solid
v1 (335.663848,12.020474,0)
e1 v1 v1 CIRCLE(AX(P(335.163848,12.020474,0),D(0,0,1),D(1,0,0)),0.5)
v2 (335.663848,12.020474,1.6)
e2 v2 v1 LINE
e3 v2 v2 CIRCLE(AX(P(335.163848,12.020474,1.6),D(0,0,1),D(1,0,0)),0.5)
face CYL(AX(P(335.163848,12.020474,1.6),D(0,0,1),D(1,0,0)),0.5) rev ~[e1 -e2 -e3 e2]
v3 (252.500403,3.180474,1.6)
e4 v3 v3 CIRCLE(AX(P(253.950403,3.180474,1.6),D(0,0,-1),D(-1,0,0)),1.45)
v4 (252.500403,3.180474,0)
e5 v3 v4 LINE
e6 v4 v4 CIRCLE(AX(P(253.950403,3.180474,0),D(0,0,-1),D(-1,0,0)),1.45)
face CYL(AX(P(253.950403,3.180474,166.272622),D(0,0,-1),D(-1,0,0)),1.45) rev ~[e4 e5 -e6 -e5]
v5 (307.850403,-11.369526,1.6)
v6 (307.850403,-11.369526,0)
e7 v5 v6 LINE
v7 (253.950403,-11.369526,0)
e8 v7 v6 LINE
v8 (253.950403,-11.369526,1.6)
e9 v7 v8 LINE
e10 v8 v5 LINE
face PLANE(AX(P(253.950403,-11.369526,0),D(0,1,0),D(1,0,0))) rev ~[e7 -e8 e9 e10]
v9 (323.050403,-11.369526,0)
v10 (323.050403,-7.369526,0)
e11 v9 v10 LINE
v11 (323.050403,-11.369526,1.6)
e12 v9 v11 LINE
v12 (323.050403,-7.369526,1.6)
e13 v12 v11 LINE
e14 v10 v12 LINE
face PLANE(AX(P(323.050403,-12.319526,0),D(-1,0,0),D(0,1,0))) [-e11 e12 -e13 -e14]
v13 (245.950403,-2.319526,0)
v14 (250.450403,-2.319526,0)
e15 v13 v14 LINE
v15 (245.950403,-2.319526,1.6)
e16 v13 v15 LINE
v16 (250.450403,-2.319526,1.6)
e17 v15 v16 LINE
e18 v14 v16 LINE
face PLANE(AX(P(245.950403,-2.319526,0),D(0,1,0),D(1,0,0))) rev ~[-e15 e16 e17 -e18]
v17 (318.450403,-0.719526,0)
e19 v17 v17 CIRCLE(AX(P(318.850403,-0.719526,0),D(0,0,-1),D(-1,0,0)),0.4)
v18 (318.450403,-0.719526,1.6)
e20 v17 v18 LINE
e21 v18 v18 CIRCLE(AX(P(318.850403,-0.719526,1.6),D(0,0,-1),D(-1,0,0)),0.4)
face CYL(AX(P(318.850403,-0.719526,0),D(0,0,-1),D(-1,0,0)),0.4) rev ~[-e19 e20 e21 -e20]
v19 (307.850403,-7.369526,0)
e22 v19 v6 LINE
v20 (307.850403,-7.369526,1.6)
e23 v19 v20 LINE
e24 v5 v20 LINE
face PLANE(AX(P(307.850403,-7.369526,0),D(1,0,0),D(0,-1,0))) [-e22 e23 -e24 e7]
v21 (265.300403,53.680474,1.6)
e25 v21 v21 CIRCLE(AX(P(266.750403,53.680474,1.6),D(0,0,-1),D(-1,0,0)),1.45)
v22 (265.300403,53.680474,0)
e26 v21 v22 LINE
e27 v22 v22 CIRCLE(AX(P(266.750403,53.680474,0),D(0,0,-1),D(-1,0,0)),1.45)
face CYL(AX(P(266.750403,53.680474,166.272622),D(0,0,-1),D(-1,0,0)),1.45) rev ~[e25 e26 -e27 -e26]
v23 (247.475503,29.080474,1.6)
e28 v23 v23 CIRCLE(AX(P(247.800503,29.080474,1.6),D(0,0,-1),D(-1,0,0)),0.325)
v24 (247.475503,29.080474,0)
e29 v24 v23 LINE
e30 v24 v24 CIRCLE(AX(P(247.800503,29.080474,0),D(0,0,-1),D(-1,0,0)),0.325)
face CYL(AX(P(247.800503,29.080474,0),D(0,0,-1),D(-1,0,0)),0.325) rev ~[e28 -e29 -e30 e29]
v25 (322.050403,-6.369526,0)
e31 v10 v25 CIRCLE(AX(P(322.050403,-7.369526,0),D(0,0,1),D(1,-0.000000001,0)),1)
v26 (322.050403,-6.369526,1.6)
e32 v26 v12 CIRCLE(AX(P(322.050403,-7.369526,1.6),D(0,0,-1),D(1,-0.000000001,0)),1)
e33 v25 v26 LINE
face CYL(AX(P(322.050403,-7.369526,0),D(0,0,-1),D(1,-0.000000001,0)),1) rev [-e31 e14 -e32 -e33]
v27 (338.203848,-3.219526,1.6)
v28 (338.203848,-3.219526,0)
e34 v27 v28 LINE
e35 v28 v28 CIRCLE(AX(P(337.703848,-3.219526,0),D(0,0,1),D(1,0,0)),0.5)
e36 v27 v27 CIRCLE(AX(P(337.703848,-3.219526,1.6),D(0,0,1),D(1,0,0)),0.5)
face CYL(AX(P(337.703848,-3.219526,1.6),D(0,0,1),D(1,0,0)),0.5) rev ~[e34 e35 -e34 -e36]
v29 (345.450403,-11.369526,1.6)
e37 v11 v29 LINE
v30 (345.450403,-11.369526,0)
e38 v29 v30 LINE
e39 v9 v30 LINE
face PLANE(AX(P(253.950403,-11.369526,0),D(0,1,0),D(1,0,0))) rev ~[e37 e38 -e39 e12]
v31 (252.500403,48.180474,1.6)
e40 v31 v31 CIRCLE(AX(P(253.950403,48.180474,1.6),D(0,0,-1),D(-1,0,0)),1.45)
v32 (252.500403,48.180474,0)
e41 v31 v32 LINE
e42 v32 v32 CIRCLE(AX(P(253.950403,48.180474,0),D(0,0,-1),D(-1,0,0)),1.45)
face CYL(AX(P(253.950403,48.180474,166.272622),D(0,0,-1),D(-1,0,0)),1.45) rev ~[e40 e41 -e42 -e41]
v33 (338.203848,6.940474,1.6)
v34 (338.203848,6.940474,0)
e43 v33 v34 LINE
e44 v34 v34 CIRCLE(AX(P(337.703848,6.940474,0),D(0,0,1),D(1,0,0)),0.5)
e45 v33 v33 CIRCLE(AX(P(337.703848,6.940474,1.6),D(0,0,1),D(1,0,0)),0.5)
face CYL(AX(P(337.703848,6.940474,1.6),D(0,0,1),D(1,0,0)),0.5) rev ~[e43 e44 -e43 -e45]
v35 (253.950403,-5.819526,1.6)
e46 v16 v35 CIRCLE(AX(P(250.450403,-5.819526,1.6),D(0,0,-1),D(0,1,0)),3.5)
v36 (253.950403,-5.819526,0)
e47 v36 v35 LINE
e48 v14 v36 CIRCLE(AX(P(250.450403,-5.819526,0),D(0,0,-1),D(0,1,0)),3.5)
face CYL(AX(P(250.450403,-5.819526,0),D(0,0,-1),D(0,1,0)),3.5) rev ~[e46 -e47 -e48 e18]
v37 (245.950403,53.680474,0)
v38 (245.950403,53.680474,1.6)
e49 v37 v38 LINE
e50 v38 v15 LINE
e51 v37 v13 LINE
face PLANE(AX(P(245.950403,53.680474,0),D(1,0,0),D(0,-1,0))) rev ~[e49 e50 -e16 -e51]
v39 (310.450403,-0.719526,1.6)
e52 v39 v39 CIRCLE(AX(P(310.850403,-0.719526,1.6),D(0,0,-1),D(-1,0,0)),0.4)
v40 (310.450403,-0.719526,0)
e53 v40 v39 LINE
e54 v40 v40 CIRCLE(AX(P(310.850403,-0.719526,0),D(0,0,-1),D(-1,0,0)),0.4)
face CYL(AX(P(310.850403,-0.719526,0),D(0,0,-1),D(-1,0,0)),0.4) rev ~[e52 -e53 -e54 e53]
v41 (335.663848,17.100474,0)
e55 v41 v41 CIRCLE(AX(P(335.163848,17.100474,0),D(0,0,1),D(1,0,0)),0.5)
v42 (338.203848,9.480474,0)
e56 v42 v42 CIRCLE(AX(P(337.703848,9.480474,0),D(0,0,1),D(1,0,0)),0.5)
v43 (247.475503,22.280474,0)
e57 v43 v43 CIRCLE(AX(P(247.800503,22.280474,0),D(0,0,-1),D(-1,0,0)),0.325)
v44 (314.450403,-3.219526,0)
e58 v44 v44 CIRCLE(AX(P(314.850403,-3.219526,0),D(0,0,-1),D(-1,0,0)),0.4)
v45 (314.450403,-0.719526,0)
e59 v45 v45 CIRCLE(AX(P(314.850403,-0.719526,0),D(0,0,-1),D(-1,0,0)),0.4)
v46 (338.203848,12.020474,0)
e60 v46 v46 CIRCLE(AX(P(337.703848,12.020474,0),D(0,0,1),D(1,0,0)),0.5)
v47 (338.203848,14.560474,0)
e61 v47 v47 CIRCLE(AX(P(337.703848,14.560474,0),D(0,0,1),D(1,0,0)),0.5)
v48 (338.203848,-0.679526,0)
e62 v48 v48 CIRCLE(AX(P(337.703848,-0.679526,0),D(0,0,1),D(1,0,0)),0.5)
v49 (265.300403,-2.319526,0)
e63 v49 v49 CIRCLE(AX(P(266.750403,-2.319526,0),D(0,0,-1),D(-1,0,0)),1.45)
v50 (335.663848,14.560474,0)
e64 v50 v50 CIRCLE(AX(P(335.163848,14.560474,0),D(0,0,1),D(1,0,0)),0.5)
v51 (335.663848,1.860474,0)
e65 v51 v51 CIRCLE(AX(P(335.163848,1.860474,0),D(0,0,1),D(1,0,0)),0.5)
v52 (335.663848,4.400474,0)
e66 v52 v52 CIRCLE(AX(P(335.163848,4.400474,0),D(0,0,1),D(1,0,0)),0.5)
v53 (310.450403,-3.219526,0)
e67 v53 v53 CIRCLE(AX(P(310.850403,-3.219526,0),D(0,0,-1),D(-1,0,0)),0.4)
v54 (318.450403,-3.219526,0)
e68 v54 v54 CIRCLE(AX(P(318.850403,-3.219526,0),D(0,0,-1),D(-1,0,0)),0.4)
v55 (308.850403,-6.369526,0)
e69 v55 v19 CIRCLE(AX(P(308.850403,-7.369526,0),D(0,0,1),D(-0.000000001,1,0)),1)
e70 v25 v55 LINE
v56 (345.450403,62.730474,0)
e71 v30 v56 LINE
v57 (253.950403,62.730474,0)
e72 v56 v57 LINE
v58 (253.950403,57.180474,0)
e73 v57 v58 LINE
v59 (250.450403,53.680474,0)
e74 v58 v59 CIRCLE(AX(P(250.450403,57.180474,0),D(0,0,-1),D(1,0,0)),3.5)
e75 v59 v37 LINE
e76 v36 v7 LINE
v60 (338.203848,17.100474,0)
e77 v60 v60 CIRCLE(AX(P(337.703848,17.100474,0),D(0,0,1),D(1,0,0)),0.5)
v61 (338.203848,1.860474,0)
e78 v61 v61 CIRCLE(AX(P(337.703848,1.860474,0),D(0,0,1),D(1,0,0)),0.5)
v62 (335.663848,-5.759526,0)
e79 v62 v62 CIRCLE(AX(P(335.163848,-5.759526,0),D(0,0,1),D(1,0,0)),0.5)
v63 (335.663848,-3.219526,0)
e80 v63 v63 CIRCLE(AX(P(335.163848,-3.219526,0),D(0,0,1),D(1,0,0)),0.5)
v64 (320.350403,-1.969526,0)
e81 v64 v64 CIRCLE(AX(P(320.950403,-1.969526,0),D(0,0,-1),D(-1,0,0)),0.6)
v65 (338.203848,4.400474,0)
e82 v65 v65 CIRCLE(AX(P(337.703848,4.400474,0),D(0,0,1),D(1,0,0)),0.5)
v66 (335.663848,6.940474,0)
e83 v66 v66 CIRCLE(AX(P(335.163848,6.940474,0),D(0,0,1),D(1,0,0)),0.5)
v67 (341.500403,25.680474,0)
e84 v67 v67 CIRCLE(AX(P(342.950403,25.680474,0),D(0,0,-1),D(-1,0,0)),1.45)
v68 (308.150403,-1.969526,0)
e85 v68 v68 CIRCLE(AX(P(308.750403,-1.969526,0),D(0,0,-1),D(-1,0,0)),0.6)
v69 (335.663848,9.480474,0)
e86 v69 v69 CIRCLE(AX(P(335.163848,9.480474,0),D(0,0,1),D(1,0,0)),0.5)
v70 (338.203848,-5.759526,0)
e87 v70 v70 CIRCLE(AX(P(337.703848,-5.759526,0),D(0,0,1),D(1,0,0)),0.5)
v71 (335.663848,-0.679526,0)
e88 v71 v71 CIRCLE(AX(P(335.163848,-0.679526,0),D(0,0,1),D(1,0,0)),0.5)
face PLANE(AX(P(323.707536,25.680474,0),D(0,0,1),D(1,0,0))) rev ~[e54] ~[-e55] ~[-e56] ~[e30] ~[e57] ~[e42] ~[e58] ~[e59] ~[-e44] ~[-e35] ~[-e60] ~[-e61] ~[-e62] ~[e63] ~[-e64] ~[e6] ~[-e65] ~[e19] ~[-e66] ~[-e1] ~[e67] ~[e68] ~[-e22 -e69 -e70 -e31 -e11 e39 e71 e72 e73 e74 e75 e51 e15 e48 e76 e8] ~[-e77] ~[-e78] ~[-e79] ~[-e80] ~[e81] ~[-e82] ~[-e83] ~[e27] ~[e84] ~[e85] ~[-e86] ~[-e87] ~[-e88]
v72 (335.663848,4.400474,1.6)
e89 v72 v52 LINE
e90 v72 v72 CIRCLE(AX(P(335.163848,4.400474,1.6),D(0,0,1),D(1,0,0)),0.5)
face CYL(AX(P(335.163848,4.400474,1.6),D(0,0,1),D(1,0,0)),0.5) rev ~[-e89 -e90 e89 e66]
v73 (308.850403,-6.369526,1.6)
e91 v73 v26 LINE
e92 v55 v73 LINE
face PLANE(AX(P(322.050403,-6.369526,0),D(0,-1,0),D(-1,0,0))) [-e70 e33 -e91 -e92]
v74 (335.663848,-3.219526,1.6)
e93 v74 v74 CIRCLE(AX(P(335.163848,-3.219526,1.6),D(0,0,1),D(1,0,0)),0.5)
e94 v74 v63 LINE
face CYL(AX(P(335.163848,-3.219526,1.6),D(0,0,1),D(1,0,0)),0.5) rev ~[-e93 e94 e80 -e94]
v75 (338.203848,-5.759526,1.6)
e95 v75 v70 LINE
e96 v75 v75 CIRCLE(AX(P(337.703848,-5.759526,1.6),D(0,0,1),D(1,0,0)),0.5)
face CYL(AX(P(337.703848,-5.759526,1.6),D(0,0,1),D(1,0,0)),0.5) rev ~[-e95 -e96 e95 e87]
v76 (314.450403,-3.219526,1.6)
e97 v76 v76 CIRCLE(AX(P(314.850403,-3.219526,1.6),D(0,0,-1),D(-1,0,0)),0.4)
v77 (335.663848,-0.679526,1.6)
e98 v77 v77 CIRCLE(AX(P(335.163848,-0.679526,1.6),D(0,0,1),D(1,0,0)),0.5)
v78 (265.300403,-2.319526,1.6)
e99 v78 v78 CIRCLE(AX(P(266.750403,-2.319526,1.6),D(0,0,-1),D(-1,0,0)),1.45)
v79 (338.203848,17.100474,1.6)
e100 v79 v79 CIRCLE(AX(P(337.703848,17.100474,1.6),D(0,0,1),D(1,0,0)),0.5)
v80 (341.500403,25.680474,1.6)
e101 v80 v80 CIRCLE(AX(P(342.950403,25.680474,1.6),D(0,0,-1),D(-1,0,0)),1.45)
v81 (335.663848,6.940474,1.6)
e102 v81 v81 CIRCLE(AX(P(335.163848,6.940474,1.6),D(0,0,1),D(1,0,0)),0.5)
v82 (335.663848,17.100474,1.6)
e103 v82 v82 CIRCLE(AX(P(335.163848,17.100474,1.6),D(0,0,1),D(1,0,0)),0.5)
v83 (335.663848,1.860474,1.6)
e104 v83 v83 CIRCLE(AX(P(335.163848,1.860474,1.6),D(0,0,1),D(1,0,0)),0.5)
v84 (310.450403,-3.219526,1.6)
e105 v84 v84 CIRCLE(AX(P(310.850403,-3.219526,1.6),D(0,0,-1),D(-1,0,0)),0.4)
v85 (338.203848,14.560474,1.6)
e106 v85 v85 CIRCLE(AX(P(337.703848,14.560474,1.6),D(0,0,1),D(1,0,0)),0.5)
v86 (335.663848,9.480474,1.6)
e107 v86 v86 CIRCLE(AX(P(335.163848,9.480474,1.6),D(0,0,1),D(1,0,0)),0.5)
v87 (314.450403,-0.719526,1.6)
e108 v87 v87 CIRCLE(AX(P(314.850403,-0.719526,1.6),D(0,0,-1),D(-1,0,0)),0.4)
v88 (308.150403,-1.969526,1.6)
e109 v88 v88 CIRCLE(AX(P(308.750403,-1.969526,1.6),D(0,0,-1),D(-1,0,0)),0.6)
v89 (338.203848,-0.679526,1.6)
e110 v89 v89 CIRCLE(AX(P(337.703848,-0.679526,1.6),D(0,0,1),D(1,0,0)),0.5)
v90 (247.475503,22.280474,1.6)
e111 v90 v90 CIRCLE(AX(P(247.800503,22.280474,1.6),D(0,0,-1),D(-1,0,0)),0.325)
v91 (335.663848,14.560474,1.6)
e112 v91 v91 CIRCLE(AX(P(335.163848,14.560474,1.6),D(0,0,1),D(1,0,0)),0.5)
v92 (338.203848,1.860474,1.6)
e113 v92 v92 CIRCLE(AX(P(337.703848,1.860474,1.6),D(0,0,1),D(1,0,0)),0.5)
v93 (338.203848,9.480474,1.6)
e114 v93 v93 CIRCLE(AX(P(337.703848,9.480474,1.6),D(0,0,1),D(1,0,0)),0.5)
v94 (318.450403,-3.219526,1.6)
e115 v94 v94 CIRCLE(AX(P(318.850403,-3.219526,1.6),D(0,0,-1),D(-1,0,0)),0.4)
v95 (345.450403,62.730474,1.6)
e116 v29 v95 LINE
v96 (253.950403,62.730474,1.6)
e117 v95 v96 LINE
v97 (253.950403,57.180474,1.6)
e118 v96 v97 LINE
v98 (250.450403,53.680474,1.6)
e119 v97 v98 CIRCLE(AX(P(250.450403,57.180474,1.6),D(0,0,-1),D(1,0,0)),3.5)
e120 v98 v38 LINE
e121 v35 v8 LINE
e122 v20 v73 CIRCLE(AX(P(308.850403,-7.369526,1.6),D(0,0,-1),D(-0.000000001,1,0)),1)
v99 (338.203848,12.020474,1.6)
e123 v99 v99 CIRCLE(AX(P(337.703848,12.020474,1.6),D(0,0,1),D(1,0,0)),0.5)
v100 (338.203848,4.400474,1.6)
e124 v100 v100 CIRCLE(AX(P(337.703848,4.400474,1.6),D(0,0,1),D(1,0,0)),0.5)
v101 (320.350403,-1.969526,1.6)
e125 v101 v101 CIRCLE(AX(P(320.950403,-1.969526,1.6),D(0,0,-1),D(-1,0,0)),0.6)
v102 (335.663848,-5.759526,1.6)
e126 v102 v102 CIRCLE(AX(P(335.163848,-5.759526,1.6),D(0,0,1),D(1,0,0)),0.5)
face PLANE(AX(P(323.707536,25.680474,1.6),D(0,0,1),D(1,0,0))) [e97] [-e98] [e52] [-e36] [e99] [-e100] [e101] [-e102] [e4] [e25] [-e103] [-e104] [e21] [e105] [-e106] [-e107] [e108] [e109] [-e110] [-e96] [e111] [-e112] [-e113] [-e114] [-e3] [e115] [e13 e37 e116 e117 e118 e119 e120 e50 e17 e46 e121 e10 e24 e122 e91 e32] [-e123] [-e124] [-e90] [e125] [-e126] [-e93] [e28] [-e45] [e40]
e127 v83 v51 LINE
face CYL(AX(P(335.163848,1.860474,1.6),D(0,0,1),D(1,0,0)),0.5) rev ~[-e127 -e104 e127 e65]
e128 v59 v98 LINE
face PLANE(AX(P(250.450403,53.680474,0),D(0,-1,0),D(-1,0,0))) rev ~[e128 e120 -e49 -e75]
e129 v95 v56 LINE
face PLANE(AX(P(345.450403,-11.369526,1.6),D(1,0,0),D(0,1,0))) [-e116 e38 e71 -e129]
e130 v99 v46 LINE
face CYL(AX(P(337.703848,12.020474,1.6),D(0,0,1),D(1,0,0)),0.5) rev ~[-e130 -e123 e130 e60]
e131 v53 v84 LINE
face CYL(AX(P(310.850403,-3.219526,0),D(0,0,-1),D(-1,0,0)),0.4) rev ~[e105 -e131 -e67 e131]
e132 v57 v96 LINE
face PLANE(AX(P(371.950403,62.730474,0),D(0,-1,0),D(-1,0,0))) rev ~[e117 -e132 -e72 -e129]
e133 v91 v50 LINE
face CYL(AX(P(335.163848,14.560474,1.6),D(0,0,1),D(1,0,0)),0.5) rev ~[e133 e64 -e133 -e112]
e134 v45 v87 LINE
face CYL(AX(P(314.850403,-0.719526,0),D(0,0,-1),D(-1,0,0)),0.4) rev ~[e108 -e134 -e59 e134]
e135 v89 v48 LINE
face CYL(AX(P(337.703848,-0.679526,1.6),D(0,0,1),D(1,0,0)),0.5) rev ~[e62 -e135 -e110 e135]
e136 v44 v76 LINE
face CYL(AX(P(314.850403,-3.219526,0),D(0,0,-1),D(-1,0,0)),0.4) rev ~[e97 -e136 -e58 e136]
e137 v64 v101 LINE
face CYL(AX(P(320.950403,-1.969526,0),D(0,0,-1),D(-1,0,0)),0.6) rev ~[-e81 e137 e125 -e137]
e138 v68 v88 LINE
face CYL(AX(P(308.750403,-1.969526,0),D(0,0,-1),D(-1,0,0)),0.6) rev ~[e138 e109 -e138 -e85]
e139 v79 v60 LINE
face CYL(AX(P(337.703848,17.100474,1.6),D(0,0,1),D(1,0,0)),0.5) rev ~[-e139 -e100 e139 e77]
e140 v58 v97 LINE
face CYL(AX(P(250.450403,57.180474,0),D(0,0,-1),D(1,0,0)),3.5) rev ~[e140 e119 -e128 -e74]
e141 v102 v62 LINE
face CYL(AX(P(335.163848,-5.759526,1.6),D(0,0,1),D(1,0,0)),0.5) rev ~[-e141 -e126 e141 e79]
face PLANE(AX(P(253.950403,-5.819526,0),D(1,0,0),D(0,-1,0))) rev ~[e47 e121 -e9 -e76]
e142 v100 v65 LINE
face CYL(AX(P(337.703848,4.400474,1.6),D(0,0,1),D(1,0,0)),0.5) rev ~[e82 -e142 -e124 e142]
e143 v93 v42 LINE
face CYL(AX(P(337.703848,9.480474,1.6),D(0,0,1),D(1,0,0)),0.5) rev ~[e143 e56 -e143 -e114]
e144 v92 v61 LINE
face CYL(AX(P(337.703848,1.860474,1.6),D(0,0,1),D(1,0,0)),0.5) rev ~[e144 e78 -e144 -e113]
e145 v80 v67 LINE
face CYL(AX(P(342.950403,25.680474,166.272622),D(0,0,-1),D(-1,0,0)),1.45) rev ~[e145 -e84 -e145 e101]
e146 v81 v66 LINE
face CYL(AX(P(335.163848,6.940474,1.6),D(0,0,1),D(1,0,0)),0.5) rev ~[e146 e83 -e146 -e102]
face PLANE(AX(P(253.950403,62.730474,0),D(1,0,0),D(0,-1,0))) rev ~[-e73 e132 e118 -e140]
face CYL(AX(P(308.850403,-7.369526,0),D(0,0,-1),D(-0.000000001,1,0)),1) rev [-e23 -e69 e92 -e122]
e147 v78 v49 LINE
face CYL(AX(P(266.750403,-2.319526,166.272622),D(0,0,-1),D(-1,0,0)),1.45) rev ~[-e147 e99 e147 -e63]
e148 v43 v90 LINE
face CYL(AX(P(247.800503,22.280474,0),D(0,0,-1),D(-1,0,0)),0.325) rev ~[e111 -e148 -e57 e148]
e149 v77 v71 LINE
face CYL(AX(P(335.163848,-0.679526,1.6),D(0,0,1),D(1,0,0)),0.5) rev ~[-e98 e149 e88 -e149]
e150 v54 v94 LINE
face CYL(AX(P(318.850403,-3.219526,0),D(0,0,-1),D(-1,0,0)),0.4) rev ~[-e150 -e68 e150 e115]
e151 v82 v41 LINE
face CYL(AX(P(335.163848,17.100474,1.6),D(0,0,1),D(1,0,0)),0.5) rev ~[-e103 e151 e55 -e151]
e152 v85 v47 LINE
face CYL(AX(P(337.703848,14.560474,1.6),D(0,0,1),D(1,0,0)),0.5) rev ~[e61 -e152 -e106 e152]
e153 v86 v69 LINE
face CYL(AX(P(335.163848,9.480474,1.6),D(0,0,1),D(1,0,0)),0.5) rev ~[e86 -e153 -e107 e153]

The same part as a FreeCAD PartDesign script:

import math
import FreeCAD as App
import Part
import Sketcher
from FreeCAD import Vector
Q = App.Units.Quantity


def add_polygon(sketch, points):
    """Adds a closed chain of lines whose ends are joined by coincident constraints."""
    first, n = sketch.GeometryCount, len(points)
    for a, b in zip(points, points[1:] + points[:1]):
        sketch.addGeometry(Part.LineSegment(App.Vector(*a, 0), App.Vector(*b, 0)), False)
    for i in range(n):
        sketch.addConstraint(Sketcher.Constraint("Coincident", first + i, 2, first + (i + 1) % n, 1))

doc = App.newDocument("Part")
body = doc.addObject("PartDesign::Body", "Body")

# Sketch on XY plane
sketch1 = body.newObject("Sketcher::SketchObject", "Sketch")
sketch1.AttachmentSupport = (doc.getObject("XY_Plane"), [""])
sketch1.MapMode = "FlatFace"
sketch1.addGeometry(Part.LineSegment(Vector(372, 62.7, 0), Vector(254, 62.7, 0)), False)
sketch1.addGeometry(Part.LineSegment(Vector(254, 62.7, 0), Vector(254, 57.2, 0)), False)
sketch1.addGeometry(Part.ArcOfCircle(Part.Circle(Vector(250.5, 57.2, 0), Vector(0, 0, 1), 3.5), math.radians(-90), math.radians(0)), False)
sketch1.addGeometry(Part.LineSegment(Vector(250.5, 53.7, 0), Vector(246, 53.7, 0)), False)
sketch1.addGeometry(Part.LineSegment(Vector(246, 53.7, 0), Vector(246, -2.3, 0)), False)
sketch1.addGeometry(Part.LineSegment(Vector(246, -2.3, 0), Vector(250.5, -2.3, 0)), False)
sketch1.addGeometry(Part.ArcOfCircle(Part.Circle(Vector(250.5, -5.8, 0), Vector(0, 0, 1), 3.5), math.radians(0), math.radians(90)), False)
sketch1.addGeometry(Part.LineSegment(Vector(254, -5.8, 0), Vector(254, -11.4, 0)), False)
sketch1.addGeometry(Part.LineSegment(Vector(254, -11.4, 0), Vector(372, -11.4, 0)), False)
sketch1.addGeometry(Part.LineSegment(Vector(372, -11.4, 0), Vector(372, -5.8, 0)), False)
sketch1.addGeometry(Part.ArcOfCircle(Part.Circle(Vector(375.5, -5.8, 0), Vector(0, 0, 1), 3.5), math.radians(0), math.radians(180)), False)
sketch1.addGeometry(Part.LineSegment(Vector(379, -5.8, 0), Vector(379, -11.4, 0)), False)
sketch1.addGeometry(Part.LineSegment(Vector(379, -11.4, 0), Vector(393, -11.4, 0)), False)
sketch1.addGeometry(Part.LineSegment(Vector(393, -11.4, 0), Vector(393, 62.7, 0)), False)
sketch1.addGeometry(Part.LineSegment(Vector(393, 62.7, 0), Vector(379, 62.7, 0)), False)
sketch1.addGeometry(Part.LineSegment(Vector(379, 62.7, 0), Vector(379, 57.2, 0)), False)
sketch1.addGeometry(Part.ArcOfCircle(Part.Circle(Vector(375.5, 57.2, 0), Vector(0, 0, 1), 3.5), math.radians(180), math.radians(360)), False)
sketch1.addGeometry(Part.LineSegment(Vector(372, 57.2, 0), Vector(372, 62.7, 0)), False)
sketch1.addConstraint(Sketcher.Constraint("Coincident", 0, 2, 1, 1))
sketch1.addConstraint(Sketcher.Constraint("Tangent", 1, 2, 2, 2))
sketch1.addConstraint(Sketcher.Constraint("Tangent", 2, 1, 3, 1))
sketch1.addConstraint(Sketcher.Constraint("Coincident", 3, 2, 4, 1))
sketch1.addConstraint(Sketcher.Constraint("Coincident", 4, 2, 5, 1))
sketch1.addConstraint(Sketcher.Constraint("Tangent", 5, 2, 6, 2))
sketch1.addConstraint(Sketcher.Constraint("Tangent", 6, 1, 7, 1))
sketch1.addConstraint(Sketcher.Constraint("Coincident", 7, 2, 8, 1))
sketch1.addConstraint(Sketcher.Constraint("Coincident", 8, 2, 9, 1))
sketch1.addConstraint(Sketcher.Constraint("Tangent", 9, 2, 10, 2))
sketch1.addConstraint(Sketcher.Constraint("Tangent", 10, 1, 11, 1))
sketch1.addConstraint(Sketcher.Constraint("Coincident", 11, 2, 12, 1))
sketch1.addConstraint(Sketcher.Constraint("Coincident", 12, 2, 13, 1))
sketch1.addConstraint(Sketcher.Constraint("Coincident", 13, 2, 14, 1))
sketch1.addConstraint(Sketcher.Constraint("Coincident", 14, 2, 15, 1))
sketch1.addConstraint(Sketcher.Constraint("Tangent", 15, 2, 16, 2))
sketch1.addConstraint(Sketcher.Constraint("Tangent", 16, 1, 17, 1))
sketch1.addConstraint(Sketcher.Constraint("Coincident", 17, 2, 0, 1))
sketch1.addConstraint(Sketcher.Constraint("Horizontal", 0))
sketch1.addConstraint(Sketcher.Constraint("Vertical", 1))
sketch1.addConstraint(Sketcher.Constraint("Horizontal", 3))
sketch1.addConstraint(Sketcher.Constraint("Vertical", 4))
sketch1.addConstraint(Sketcher.Constraint("Horizontal", 5))
sketch1.addConstraint(Sketcher.Constraint("Vertical", 7))
sketch1.addConstraint(Sketcher.Constraint("Horizontal", 8))
sketch1.addConstraint(Sketcher.Constraint("Vertical", 9))
sketch1.addConstraint(Sketcher.Constraint("Vertical", 11))
sketch1.addConstraint(Sketcher.Constraint("Horizontal", 12))
sketch1.addConstraint(Sketcher.Constraint("Vertical", 13))
sketch1.addConstraint(Sketcher.Constraint("Horizontal", 14))
sketch1.addConstraint(Sketcher.Constraint("Vertical", 15))
sketch1.addConstraint(Sketcher.Constraint("Vertical", 17))
sketch1.addConstraint(Sketcher.Constraint("Equal", 2, 6))
sketch1.addConstraint(Sketcher.Constraint("Equal", 6, 10))
sketch1.addConstraint(Sketcher.Constraint("Equal", 10, 16))
sketch1.addConstraint(Sketcher.Constraint("Horizontal", 6, 3, 10, 3))
sketch1.addConstraint(Sketcher.Constraint("Horizontal", 2, 3, 16, 3))
sketch1.addConstraint(Sketcher.Constraint("Horizontal", 8, 2, 11, 2))
sketch1.addConstraint(Sketcher.Constraint("Horizontal", 0, 2, 13, 2))
sketch1.addConstraint(Sketcher.Constraint("Vertical", 2, 3, 6, 3))
sketch1.addConstraint(Sketcher.Constraint("Vertical", 10, 3, 16, 3))
sketch1.addConstraint(Sketcher.Constraint("Equal", 1, 7))
sketch1.addConstraint(Sketcher.Constraint("Radius", 2, Q("3.5 mm")))
sketch1.addConstraint(Sketcher.Constraint("DistanceX", 0, 2, 0, 1, Q("118 mm")))
sketch1.addConstraint(Sketcher.Constraint("DistanceY", 4, 2, 4, 1, Q("56 mm")))
sketch1.addConstraint(Sketcher.Constraint("DistanceX", 3, 2, 3, 1, Q("4.5 mm")))
sketch1.addConstraint(Sketcher.Constraint("DistanceY", 13, 1, 13, 2, Q("74.1 mm")))
sketch1.addConstraint(Sketcher.Constraint("DistanceX", 12, 1, 12, 2, Q("14.05 mm")))
sketch1.addConstraint(Sketcher.Constraint("DistanceX", -1, 1, 2, 3, Q("250.450403 mm")))
sketch1.addConstraint(Sketcher.Constraint("DistanceY", -1, 1, 2, 3, Q("57.180474 mm")))
pad1 = body.newObject("PartDesign::Pad", "Pad")
pad1.Profile = sketch1
pad1.Length = 1.6

# Sketch on XY plane
sketch2 = body.newObject("Sketcher::SketchObject", "Sketch001")
sketch2.AttachmentSupport = (doc.getObject("XY_Plane"), [""])
sketch2.MapMode = "FlatFace"
sketch2.AttachmentOffset = App.Placement(Vector(0, 0, 1.6), App.Rotation())
sketch2.addGeometry(Part.Circle(Vector(347.3, -2.3, 0), Vector(0, 0, 1), 1.4), False)
sketch2.addGeometry(Part.Circle(Vector(343, 25.7, 0), Vector(0, 0, 1), 1.4), False)
sketch2.addGeometry(Part.Circle(Vector(347.3, 53.7, 0), Vector(0, 0, 1), 1.4), False)
sketch2.addGeometry(Part.Circle(Vector(266.8, -2.3, 0), Vector(0, 0, 1), 1.4), False)
sketch2.addGeometry(Part.Circle(Vector(254, 3.2, 0), Vector(0, 0, 1), 1.4), False)
sketch2.addGeometry(Part.Circle(Vector(266.8, 53.7, 0), Vector(0, 0, 1), 1.4), False)
sketch2.addGeometry(Part.Circle(Vector(254, 48.2, 0), Vector(0, 0, 1), 1.4), False)
sketch2.addConstraint(Sketcher.Constraint("Equal", 0, 1))
sketch2.addConstraint(Sketcher.Constraint("Equal", 1, 2))
sketch2.addConstraint(Sketcher.Constraint("Equal", 2, 3))
sketch2.addConstraint(Sketcher.Constraint("Equal", 3, 4))
sketch2.addConstraint(Sketcher.Constraint("Equal", 4, 5))
sketch2.addConstraint(Sketcher.Constraint("Equal", 5, 6))
sketch2.addConstraint(Sketcher.Constraint("Horizontal", 0, 3, 3, 3))
sketch2.addConstraint(Sketcher.Constraint("Horizontal", 2, 3, 5, 3))
sketch2.addConstraint(Sketcher.Constraint("Vertical", 0, 3, 2, 3))
sketch2.addConstraint(Sketcher.Constraint("Vertical", 3, 3, 5, 3))
sketch2.addConstraint(Sketcher.Constraint("Vertical", 4, 3, 6, 3))
sketch2.addConstraint(Sketcher.Constraint("Diameter", 0, Q("2.9 mm")))
sketch2.addConstraint(Sketcher.Constraint("DistanceY", 0, 3, 1, 3, Q("28 mm")))
sketch2.addConstraint(Sketcher.Constraint("DistanceY", 1, 3, 2, 3, Q("28 mm")))
sketch2.addConstraint(Sketcher.Constraint("DistanceX", 4, 3, 1, 3, Q("89 mm")))
sketch2.addConstraint(Sketcher.Constraint("DistanceY", 4, 3, 6, 3, Q("45 mm")))
sketch2.addConstraint(Sketcher.Constraint("DistanceX", 1, 3, 0, 3, Q("4.3 mm")))
sketch2.addConstraint(Sketcher.Constraint("DistanceX", 3, 3, 0, 3, Q("80.5 mm")))
sketch2.addConstraint(Sketcher.Constraint("DistanceY", 3, 3, 4, 3, Q("5.5 mm")))
sketch2.addConstraint(Sketcher.Constraint("DistanceX", -1, 1, 0, 3, Q("347.250403 mm")))
sketch2.addConstraint(Sketcher.Constraint("DistanceY", 0, 3, -1, 1, Q("2.319526 mm")))
doc.recompute()
hole = body.newObject("PartDesign::Hole", "Hole")
hole.Profile = sketch2
hole.ThreadType = "None"
hole.Diameter = 2.9
hole.DepthType = "ThroughAll"

# Sketch on XY plane
sketch3 = body.newObject("Sketcher::SketchObject", "Sketch002")
sketch3.AttachmentSupport = (doc.getObject("XY_Plane"), [""])
sketch3.MapMode = "FlatFace"
sketch3.AttachmentOffset = App.Placement(Vector(0, 0, 1.6), App.Rotation())
add_polygon(sketch3, [(345, 63), (345, -11), (393, -11), (393, 63)])  # lines 0-3
sketch3.addConstraint(Sketcher.Constraint("Vertical", 0))
sketch3.addConstraint(Sketcher.Constraint("Horizontal", 1))
sketch3.addConstraint(Sketcher.Constraint("Vertical", 2))
sketch3.addConstraint(Sketcher.Constraint("Horizontal", 3))
sketch3.addConstraint(Sketcher.Constraint("DistanceY", 0, 2, 0, 1, Q("74.1 mm")))
sketch3.addConstraint(Sketcher.Constraint("DistanceX", 1, 1, 1, 2, Q("47.55 mm")))
sketch3.addConstraint(Sketcher.Constraint("DistanceX", -1, 1, 0, 2, Q("345.450403 mm")))
sketch3.addConstraint(Sketcher.Constraint("DistanceY", 0, 2, -1, 1, Q("11.369526 mm")))
pocket1 = body.newObject("PartDesign::Pocket", "Pocket")
pocket1.Profile = sketch3
pocket1.Type = "ThroughAll"

# Sketch on XY plane
sketch4 = body.newObject("Sketcher::SketchObject", "Sketch003")
sketch4.AttachmentSupport = (doc.getObject("XY_Plane"), [""])
sketch4.MapMode = "FlatFace"
sketch4.addGeometry(Part.Circle(Vector(247.8, 29.08, 0), Vector(0, 0, 1), 0.33), False)
sketch4.addGeometry(Part.Circle(Vector(247.8, 22.28, 0), Vector(0, 0, 1), 0.33), False)
sketch4.addConstraint(Sketcher.Constraint("Equal", 0, 1))
sketch4.addConstraint(Sketcher.Constraint("Vertical", 0, 3, 1, 3))
sketch4.addConstraint(Sketcher.Constraint("Diameter", 0, Q("0.65 mm")))
sketch4.addConstraint(Sketcher.Constraint("DistanceY", 1, 3, 0, 3, Q("6.8 mm")))
sketch4.addConstraint(Sketcher.Constraint("DistanceX", -1, 1, 0, 3, Q("247.800503 mm")))
sketch4.addConstraint(Sketcher.Constraint("DistanceY", -1, 1, 0, 3, Q("29.080474 mm")))
pocket2 = body.newObject("PartDesign::Pocket", "Pocket001")
pocket2.Profile = sketch4
pocket2.Type = "ThroughAll"
pocket2.Reversed = True

# Sketch on XY plane
sketch5 = body.newObject("Sketcher::SketchObject", "Sketch004")
sketch5.AttachmentSupport = (doc.getObject("XY_Plane"), [""])
sketch5.MapMode = "FlatFace"
sketch5.addGeometry(Part.LineSegment(Vector(307.9, -12.3, 0), Vector(307.9, -7.4, 0)), False)
sketch5.addGeometry(Part.ArcOfCircle(Part.Circle(Vector(308.9, -7.4, 0), Vector(0, 0, 1), 1), math.radians(90), math.radians(180)), False)
sketch5.addGeometry(Part.LineSegment(Vector(308.9, -6.4, 0), Vector(322.1, -6.4, 0)), False)
sketch5.addGeometry(Part.ArcOfCircle(Part.Circle(Vector(322.1, -7.4, 0), Vector(0, 0, 1), 1), math.radians(0), math.radians(90)), False)
sketch5.addGeometry(Part.LineSegment(Vector(323.1, -7.4, 0), Vector(323.1, -12.3, 0)), False)
sketch5.addGeometry(Part.LineSegment(Vector(323.1, -12.3, 0), Vector(307.9, -12.3, 0)), False)
sketch5.addConstraint(Sketcher.Constraint("Tangent", 0, 2, 1, 2))
sketch5.addConstraint(Sketcher.Constraint("Tangent", 1, 1, 2, 1))
sketch5.addConstraint(Sketcher.Constraint("Tangent", 2, 2, 3, 2))
sketch5.addConstraint(Sketcher.Constraint("Tangent", 3, 1, 4, 1))
sketch5.addConstraint(Sketcher.Constraint("Coincident", 4, 2, 5, 1))
sketch5.addConstraint(Sketcher.Constraint("Coincident", 5, 2, 0, 1))
sketch5.addConstraint(Sketcher.Constraint("Vertical", 0))
sketch5.addConstraint(Sketcher.Constraint("Horizontal", 2))
sketch5.addConstraint(Sketcher.Constraint("Vertical", 4))
sketch5.addConstraint(Sketcher.Constraint("Horizontal", 5))
sketch5.addConstraint(Sketcher.Constraint("Equal", 1, 3))
sketch5.addConstraint(Sketcher.Constraint("Radius", 1, Q("1 mm")))
sketch5.addConstraint(Sketcher.Constraint("DistanceX", 2, 1, 2, 2, Q("13.2 mm")))
sketch5.addConstraint(Sketcher.Constraint("DistanceY", 0, 1, 0, 2, Q("4.95 mm")))
sketch5.addConstraint(Sketcher.Constraint("DistanceX", -1, 1, 1, 3, Q("308.850403 mm")))
sketch5.addConstraint(Sketcher.Constraint("DistanceY", 1, 3, -1, 1, Q("7.369526 mm")))
pocket3 = body.newObject("PartDesign::Pocket", "Pocket002")
pocket3.Profile = sketch5
pocket3.Type = "ThroughAll"
pocket3.Reversed = True

# Sketch on XY plane
sketch6 = body.newObject("Sketcher::SketchObject", "Sketch005")
sketch6.AttachmentSupport = (doc.getObject("XY_Plane"), [""])
sketch6.MapMode = "FlatFace"
sketch6.addGeometry(Part.Circle(Vector(308.75, -1.97, 0), Vector(0, 0, 1), 0.6), False)
sketch6.addGeometry(Part.Circle(Vector(310.85, -3.22, 0), Vector(0, 0, 1), 0.4), False)
sketch6.addGeometry(Part.Circle(Vector(314.85, -3.22, 0), Vector(0, 0, 1), 0.4), False)
sketch6.addGeometry(Part.Circle(Vector(314.85, -0.72, 0), Vector(0, 0, 1), 0.4), False)
sketch6.addGeometry(Part.Circle(Vector(318.85, -0.72, 0), Vector(0, 0, 1), 0.4), False)
sketch6.addGeometry(Part.Circle(Vector(318.85, -3.22, 0), Vector(0, 0, 1), 0.4), False)
sketch6.addGeometry(Part.Circle(Vector(320.95, -1.97, 0), Vector(0, 0, 1), 0.6), False)
sketch6.addGeometry(Part.Circle(Vector(310.85, -0.72, 0), Vector(0, 0, 1), 0.4), False)
sketch6.addConstraint(Sketcher.Constraint("Equal", 1, 2))
sketch6.addConstraint(Sketcher.Constraint("Equal", 2, 3))
sketch6.addConstraint(Sketcher.Constraint("Equal", 3, 4))
sketch6.addConstraint(Sketcher.Constraint("Equal", 4, 5))
sketch6.addConstraint(Sketcher.Constraint("Equal", 0, 6))
sketch6.addConstraint(Sketcher.Constraint("Equal", 5, 7))
sketch6.addConstraint(Sketcher.Constraint("Horizontal", 1, 3, 2, 3))
sketch6.addConstraint(Sketcher.Constraint("Horizontal", 3, 3, 4, 3))
sketch6.addConstraint(Sketcher.Constraint("Horizontal", 2, 3, 5, 3))
sketch6.addConstraint(Sketcher.Constraint("Horizontal", 0, 3, 6, 3))
sketch6.addConstraint(Sketcher.Constraint("Horizontal", 4, 3, 7, 3))
sketch6.addConstraint(Sketcher.Constraint("Vertical", 2, 3, 3, 3))
sketch6.addConstraint(Sketcher.Constraint("Vertical", 4, 3, 5, 3))
sketch6.addConstraint(Sketcher.Constraint("Vertical", 1, 3, 7, 3))
sketch6.addConstraint(Sketcher.Constraint("Diameter", 0, Q("1.2 mm")))
sketch6.addConstraint(Sketcher.Constraint("Diameter", 1, Q("0.8 mm")))
sketch6.addConstraint(Sketcher.Constraint("DistanceX", 1, 3, 2, 3, Q("4 mm")))
sketch6.addConstraint(Sketcher.Constraint("DistanceX", 3, 3, 4, 3, Q("4 mm")))
sketch6.addConstraint(Sketcher.Constraint("DistanceX", 0, 3, 1, 3, Q("2.1 mm")))
sketch6.addConstraint(Sketcher.Constraint("DistanceY", 2, 3, 3, 3, Q("2.5 mm")))
sketch6.addConstraint(Sketcher.Constraint("DistanceX", 4, 3, 6, 3, Q("2.1 mm")))
sketch6.addConstraint(Sketcher.Constraint("DistanceY", 1, 3, 0, 3, Q("1.25 mm")))
sketch6.addConstraint(Sketcher.Constraint("DistanceX", -1, 1, 0, 3, Q("308.750403 mm")))
sketch6.addConstraint(Sketcher.Constraint("DistanceY", 0, 3, -1, 1, Q("1.969526 mm")))
pocket4 = body.newObject("PartDesign::Pocket", "Pocket003")
pocket4.Profile = sketch6
pocket4.Type = "ThroughAll"
pocket4.Reversed = True

# Sketch on XY plane
sketch7 = body.newObject("Sketcher::SketchObject", "Sketch006")
sketch7.AttachmentSupport = (doc.getObject("XY_Plane"), [""])
sketch7.MapMode = "FlatFace"
sketch7.AttachmentOffset = App.Placement(Vector(0, 0, 1.6), App.Rotation())
sketch7.addGeometry(Part.Circle(Vector(335.2, -5.8, 0), Vector(0, 0, 1), 0.5), False)
sketch7.addGeometry(Part.Circle(Vector(337.7, -5.8, 0), Vector(0, 0, 1), 0.5), False)
sketch7.addGeometry(Part.Circle(Vector(337.7, -3.2, 0), Vector(0, 0, 1), 0.5), False)
sketch7.addGeometry(Part.Circle(Vector(335.2, -3.2, 0), Vector(0, 0, 1), 0.5), False)
sketch7.addGeometry(Part.Circle(Vector(335.2, -0.7, 0), Vector(0, 0, 1), 0.5), False)
sketch7.addGeometry(Part.Circle(Vector(337.7, -0.7, 0), Vector(0, 0, 1), 0.5), False)
sketch7.addGeometry(Part.Circle(Vector(335.2, 1.9, 0), Vector(0, 0, 1), 0.5), False)
sketch7.addGeometry(Part.Circle(Vector(337.7, 1.9, 0), Vector(0, 0, 1), 0.5), False)
sketch7.addGeometry(Part.Circle(Vector(335.2, 4.4, 0), Vector(0, 0, 1), 0.5), False)
sketch7.addGeometry(Part.Circle(Vector(337.7, 4.4, 0), Vector(0, 0, 1), 0.5), False)
sketch7.addGeometry(Part.Circle(Vector(335.2, 6.9, 0), Vector(0, 0, 1), 0.5), False)
sketch7.addGeometry(Part.Circle(Vector(337.7, 6.9, 0), Vector(0, 0, 1), 0.5), False)
sketch7.addGeometry(Part.Circle(Vector(335.2, 9.5, 0), Vector(0, 0, 1), 0.5), False)
sketch7.addGeometry(Part.Circle(Vector(337.7, 9.5, 0), Vector(0, 0, 1), 0.5), False)
sketch7.addGeometry(Part.Circle(Vector(335.2, 12, 0), Vector(0, 0, 1), 0.5), False)
sketch7.addGeometry(Part.Circle(Vector(337.7, 12, 0), Vector(0, 0, 1), 0.5), False)
sketch7.addGeometry(Part.Circle(Vector(335.2, 14.6, 0), Vector(0, 0, 1), 0.5), False)
sketch7.addGeometry(Part.Circle(Vector(337.7, 14.6, 0), Vector(0, 0, 1), 0.5), False)
sketch7.addGeometry(Part.Circle(Vector(335.2, 17.1, 0), Vector(0, 0, 1), 0.5), False)
sketch7.addGeometry(Part.Circle(Vector(337.7, 17.1, 0), Vector(0, 0, 1), 0.5), False)
sketch7.addConstraint(Sketcher.Constraint("Equal", 0, 1))
sketch7.addConstraint(Sketcher.Constraint("Equal", 1, 2))
sketch7.addConstraint(Sketcher.Constraint("Equal", 2, 3))
sketch7.addConstraint(Sketcher.Constraint("Equal", 3, 4))
sketch7.addConstraint(Sketcher.Constraint("Equal", 4, 5))
sketch7.addConstraint(Sketcher.Constraint("Equal", 5, 6))
sketch7.addConstraint(Sketcher.Constraint("Equal", 6, 7))
sketch7.addConstraint(Sketcher.Constraint("Equal", 7, 8))
sketch7.addConstraint(Sketcher.Constraint("Equal", 8, 9))
sketch7.addConstraint(Sketcher.Constraint("Equal", 9, 10))
sketch7.addConstraint(Sketcher.Constraint("Equal", 10, 11))
sketch7.addConstraint(Sketcher.Constraint("Equal", 11, 12))
sketch7.addConstraint(Sketcher.Constraint("Equal", 12, 13))
sketch7.addConstraint(Sketcher.Constraint("Equal", 13, 14))
sketch7.addConstraint(Sketcher.Constraint("Equal", 14, 15))
sketch7.addConstraint(Sketcher.Constraint("Equal", 15, 16))
sketch7.addConstraint(Sketcher.Constraint("Equal", 16, 17))
sketch7.addConstraint(Sketcher.Constraint("Equal", 17, 18))
sketch7.addConstraint(Sketcher.Constraint("Equal", 18, 19))
sketch7.addConstraint(Sketcher.Constraint("Horizontal", 0, 3, 1, 3))
sketch7.addConstraint(Sketcher.Constraint("Horizontal", 2, 3, 3, 3))
sketch7.addConstraint(Sketcher.Constraint("Horizontal", 4, 3, 5, 3))
sketch7.addConstraint(Sketcher.Constraint("Horizontal", 6, 3, 7, 3))
sketch7.addConstraint(Sketcher.Constraint("Horizontal", 8, 3, 9, 3))
sketch7.addConstraint(Sketcher.Constraint("Horizontal", 10, 3, 11, 3))
sketch7.addConstraint(Sketcher.Constraint("Horizontal", 12, 3, 13, 3))
sketch7.addConstraint(Sketcher.Constraint("Horizontal", 14, 3, 15, 3))
sketch7.addConstraint(Sketcher.Constraint("Horizontal", 16, 3, 17, 3))
sketch7.addConstraint(Sketcher.Constraint("Horizontal", 18, 3, 19, 3))
sketch7.addConstraint(Sketcher.Constraint("Vertical", 1, 3, 2, 3))
sketch7.addConstraint(Sketcher.Constraint("Vertical", 0, 3, 3, 3))
sketch7.addConstraint(Sketcher.Constraint("Vertical", 3, 3, 4, 3))
sketch7.addConstraint(Sketcher.Constraint("Vertical", 2, 3, 5, 3))
sketch7.addConstraint(Sketcher.Constraint("Vertical", 4, 3, 6, 3))
sketch7.addConstraint(Sketcher.Constraint("Vertical", 5, 3, 7, 3))
sketch7.addConstraint(Sketcher.Constraint("Vertical", 6, 3, 8, 3))
sketch7.addConstraint(Sketcher.Constraint("Vertical", 7, 3, 9, 3))
sketch7.addConstraint(Sketcher.Constraint("Vertical", 8, 3, 10, 3))
sketch7.addConstraint(Sketcher.Constraint("Vertical", 9, 3, 11, 3))
sketch7.addConstraint(Sketcher.Constraint("Vertical", 10, 3, 12, 3))
sketch7.addConstraint(Sketcher.Constraint("Vertical", 11, 3, 13, 3))
sketch7.addConstraint(Sketcher.Constraint("Vertical", 12, 3, 14, 3))
sketch7.addConstraint(Sketcher.Constraint("Vertical", 13, 3, 15, 3))
sketch7.addConstraint(Sketcher.Constraint("Vertical", 14, 3, 16, 3))
sketch7.addConstraint(Sketcher.Constraint("Vertical", 15, 3, 17, 3))
sketch7.addConstraint(Sketcher.Constraint("Vertical", 16, 3, 18, 3))
sketch7.addConstraint(Sketcher.Constraint("Vertical", 17, 3, 19, 3))
sketch7.addConstraint(Sketcher.Constraint("Diameter", 0, Q("1 mm")))
sketch7.addConstraint(Sketcher.Constraint("DistanceX", 0, 3, 1, 3, Q("2.54 mm")))
sketch7.addConstraint(Sketcher.Constraint("DistanceY", 1, 3, 2, 3, Q("2.54 mm")))
sketch7.addConstraint(Sketcher.Constraint("DistanceY", 3, 3, 4, 3, Q("2.54 mm")))
sketch7.addConstraint(Sketcher.Constraint("DistanceY", 4, 3, 6, 3, Q("2.54 mm")))
sketch7.addConstraint(Sketcher.Constraint("DistanceY", 6, 3, 8, 3, Q("2.54 mm")))
sketch7.addConstraint(Sketcher.Constraint("DistanceY", 8, 3, 10, 3, Q("2.54 mm")))
sketch7.addConstraint(Sketcher.Constraint("DistanceY", 10, 3, 12, 3, Q("2.54 mm")))
sketch7.addConstraint(Sketcher.Constraint("DistanceY", 12, 3, 14, 3, Q("2.54 mm")))
sketch7.addConstraint(Sketcher.Constraint("DistanceY", 14, 3, 16, 3, Q("2.54 mm")))
sketch7.addConstraint(Sketcher.Constraint("DistanceY", 16, 3, 18, 3, Q("2.54 mm")))
sketch7.addConstraint(Sketcher.Constraint("DistanceX", -1, 1, 0, 3, Q("335.163848 mm")))
sketch7.addConstraint(Sketcher.Constraint("DistanceY", 0, 3, -1, 1, Q("5.759526 mm")))
pocket5 = body.newObject("PartDesign::Pocket", "Pocket004")
pocket5.Profile = sketch7
pocket5.Type = "ThroughAll"

doc.recompute()
